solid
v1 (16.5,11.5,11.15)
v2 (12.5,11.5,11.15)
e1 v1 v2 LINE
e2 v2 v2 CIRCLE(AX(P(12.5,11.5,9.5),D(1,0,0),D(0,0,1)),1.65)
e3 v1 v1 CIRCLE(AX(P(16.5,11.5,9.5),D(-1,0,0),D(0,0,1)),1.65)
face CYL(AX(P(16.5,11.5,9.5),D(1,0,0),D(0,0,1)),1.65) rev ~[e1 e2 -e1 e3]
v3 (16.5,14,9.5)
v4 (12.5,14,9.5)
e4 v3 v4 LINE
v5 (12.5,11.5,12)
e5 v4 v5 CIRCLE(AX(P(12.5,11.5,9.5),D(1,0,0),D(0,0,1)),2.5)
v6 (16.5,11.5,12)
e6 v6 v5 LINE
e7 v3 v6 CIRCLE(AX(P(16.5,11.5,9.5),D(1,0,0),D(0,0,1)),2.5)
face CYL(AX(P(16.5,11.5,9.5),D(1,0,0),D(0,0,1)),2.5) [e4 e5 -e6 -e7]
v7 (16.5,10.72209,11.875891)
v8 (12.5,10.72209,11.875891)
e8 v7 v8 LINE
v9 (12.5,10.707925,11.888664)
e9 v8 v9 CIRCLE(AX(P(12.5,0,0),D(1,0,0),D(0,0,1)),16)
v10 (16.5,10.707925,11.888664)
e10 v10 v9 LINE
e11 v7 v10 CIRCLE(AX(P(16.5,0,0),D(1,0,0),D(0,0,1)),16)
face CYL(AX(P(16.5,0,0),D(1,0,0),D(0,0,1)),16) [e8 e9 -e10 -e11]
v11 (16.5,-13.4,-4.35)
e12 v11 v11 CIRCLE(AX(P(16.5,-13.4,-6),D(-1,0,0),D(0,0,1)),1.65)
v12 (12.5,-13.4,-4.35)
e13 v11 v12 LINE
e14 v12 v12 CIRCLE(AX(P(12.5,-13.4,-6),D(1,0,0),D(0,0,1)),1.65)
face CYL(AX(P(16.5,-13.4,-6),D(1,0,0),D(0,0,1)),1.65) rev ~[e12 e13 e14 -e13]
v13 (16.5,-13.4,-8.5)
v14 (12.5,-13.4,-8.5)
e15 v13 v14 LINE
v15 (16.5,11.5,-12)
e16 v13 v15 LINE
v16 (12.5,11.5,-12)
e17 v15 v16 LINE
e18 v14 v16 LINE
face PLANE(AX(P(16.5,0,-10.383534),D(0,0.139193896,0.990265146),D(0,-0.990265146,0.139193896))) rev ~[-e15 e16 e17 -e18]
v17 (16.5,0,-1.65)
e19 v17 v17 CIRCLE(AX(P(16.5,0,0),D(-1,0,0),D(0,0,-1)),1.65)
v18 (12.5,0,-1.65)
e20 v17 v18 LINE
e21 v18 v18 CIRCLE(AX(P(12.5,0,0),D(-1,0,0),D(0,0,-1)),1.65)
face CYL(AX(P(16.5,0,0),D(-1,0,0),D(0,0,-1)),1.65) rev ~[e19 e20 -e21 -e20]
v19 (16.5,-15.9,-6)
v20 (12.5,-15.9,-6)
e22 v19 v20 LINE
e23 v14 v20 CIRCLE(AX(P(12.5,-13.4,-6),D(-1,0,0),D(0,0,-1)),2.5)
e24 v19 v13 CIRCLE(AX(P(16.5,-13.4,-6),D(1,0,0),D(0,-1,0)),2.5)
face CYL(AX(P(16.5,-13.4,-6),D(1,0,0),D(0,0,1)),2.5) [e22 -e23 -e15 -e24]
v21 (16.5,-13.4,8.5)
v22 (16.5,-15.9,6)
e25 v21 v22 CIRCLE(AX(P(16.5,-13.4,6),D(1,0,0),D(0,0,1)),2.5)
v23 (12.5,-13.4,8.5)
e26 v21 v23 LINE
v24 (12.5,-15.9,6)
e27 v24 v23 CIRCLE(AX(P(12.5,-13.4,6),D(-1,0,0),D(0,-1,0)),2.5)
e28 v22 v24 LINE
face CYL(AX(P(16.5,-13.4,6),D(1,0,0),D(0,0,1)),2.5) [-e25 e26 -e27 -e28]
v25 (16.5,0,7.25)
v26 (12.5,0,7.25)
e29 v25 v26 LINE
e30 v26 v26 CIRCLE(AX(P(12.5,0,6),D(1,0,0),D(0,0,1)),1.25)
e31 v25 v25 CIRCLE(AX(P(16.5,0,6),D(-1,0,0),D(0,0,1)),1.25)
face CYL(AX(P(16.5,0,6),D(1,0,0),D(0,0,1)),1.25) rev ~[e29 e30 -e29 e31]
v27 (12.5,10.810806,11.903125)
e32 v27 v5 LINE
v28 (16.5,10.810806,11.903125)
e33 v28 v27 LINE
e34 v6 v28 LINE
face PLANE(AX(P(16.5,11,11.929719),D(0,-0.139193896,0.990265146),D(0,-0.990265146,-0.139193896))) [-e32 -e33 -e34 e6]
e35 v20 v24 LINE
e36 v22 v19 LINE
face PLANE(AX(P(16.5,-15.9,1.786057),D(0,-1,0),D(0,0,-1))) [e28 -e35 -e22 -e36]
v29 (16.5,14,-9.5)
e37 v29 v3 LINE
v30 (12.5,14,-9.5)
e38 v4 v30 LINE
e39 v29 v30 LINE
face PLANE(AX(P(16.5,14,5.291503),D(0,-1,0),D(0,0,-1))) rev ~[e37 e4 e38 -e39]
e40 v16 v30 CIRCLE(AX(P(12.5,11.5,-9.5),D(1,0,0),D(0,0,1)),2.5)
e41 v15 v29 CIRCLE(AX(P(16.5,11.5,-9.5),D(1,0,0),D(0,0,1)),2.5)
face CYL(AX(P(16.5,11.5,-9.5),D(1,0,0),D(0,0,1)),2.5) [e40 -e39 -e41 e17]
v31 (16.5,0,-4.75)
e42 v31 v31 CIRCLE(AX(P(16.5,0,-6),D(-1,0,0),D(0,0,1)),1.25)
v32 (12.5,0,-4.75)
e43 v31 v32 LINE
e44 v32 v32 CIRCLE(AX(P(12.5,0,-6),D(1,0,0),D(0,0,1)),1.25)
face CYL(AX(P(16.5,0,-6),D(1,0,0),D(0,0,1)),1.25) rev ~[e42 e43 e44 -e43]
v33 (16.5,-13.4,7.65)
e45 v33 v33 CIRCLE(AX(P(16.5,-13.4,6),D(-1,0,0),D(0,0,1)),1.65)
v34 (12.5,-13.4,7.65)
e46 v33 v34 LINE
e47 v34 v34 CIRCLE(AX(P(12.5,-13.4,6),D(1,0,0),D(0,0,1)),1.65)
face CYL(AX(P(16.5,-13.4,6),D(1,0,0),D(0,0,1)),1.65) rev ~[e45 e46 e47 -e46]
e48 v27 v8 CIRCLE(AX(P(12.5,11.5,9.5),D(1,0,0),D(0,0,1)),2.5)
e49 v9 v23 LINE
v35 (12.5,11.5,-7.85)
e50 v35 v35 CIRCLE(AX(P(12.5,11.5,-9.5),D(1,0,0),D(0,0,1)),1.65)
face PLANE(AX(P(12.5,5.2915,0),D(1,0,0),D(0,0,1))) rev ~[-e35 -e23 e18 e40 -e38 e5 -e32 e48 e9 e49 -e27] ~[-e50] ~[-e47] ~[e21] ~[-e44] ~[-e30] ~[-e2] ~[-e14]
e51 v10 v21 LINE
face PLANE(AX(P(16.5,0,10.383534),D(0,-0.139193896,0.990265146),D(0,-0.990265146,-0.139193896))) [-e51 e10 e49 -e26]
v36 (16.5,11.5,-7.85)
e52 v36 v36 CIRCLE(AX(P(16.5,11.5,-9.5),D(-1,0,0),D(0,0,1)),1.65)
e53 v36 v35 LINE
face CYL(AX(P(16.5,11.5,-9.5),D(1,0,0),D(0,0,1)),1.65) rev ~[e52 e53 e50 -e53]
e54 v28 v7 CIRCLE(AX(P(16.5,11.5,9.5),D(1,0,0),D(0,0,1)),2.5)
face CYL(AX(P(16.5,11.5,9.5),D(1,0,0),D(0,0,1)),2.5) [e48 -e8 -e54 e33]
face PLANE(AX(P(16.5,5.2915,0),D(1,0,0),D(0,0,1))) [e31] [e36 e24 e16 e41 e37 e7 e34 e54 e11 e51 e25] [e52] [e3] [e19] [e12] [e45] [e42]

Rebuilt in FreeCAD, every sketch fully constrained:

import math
import FreeCAD as App
import Part
import Sketcher
from FreeCAD import Vector
Q = App.Units.Quantity

doc = App.newDocument("Part")
body = doc.addObject("PartDesign::Body", "Body")

# Sketch on YZ plane
sketch1 = body.newObject("Sketcher::SketchObject", "Sketch")
sketch1.AttachmentSupport = (doc.getObject("YZ_Plane"), [""])
sketch1.MapMode = "FlatFace"
sketch1.AttachmentOffset = App.Placement(Vector(0, 0, 16.5), App.Rotation())
sketch1.addGeometry([
    Part.ArcOfCircle(Part.Circle(Vector(-13.4, 6, 0), Vector(0, 0, 1), 2.5), math.radians(90), math.radians(180)),  # 0
    Part.LineSegment(Vector(-15.9, 6, 0), Vector(-15.9, -6, 0)),  # 1
    Part.ArcOfCircle(Part.Circle(Vector(-13.4, -6, 0), Vector(0, 0, 1), 2.5), math.radians(180), math.radians(270)),  # 2
    Part.LineSegment(Vector(-13.4, -8.5, 0), Vector(11.5, -12, 0)),  # 3
    Part.ArcOfCircle(Part.Circle(Vector(11.5, -9.5, 0), Vector(0, 0, 1), 2.5), math.radians(-90), math.radians(0)),  # 4
    Part.LineSegment(Vector(14, -9.5, 0), Vector(14, 9.5, 0)),  # 5
    Part.ArcOfCircle(Part.Circle(Vector(11.5, 9.5, 0), Vector(0, 0, 1), 2.5), math.radians(0), math.radians(90)),  # 6
    Part.LineSegment(Vector(11.5, 12, 0), Vector(10.811, 11.903, 0)),  # 7
    Part.ArcOfCircle(Part.Circle(Vector(11.5, 9.5, 0), Vector(0, 0, 1), 2.5), math.radians(106), math.radians(108.13)),  # 8
    Part.ArcOfCircle(Part.Circle(Vector(0, 0, 0), Vector(0, 0, 1), 16), math.radians(47.92), math.radians(47.99)),  # 9
    Part.LineSegment(Vector(10.708, 11.889, 0), Vector(-13.4, 8.5, 0)),  # 10
    Part.Circle(Vector(0, 6, 0), Vector(0, 0, 1), 1.25),  # 11
    Part.Circle(Vector(0, -6, 0), Vector(0, 0, 1), 1.25),  # 12
    Part.Circle(Vector(11.5, 9.5, 0), Vector(0, 0, 1), 1.65),  # 13
    Part.Circle(Vector(11.5, -9.5, 0), Vector(0, 0, 1), 1.65),  # 14
    Part.Circle(Vector(-13.4, -6, 0), Vector(0, 0, 1), 1.65),  # 15
    Part.Circle(Vector(-13.4, 6, 0), Vector(0, 0, 1), 1.65),  # 16
], False)
sketch1.addConstraint([
    Sketcher.Constraint("Tangent", 0, 2, 1, 1),
    Sketcher.Constraint("Tangent", 1, 2, 2, 1),
    Sketcher.Constraint("Coincident", 2, 2, 3, 1),
    Sketcher.Constraint("Coincident", 3, 2, 4, 1),
    Sketcher.Constraint("Tangent", 4, 2, 5, 1),
    Sketcher.Constraint("Tangent", 5, 2, 6, 1),
    Sketcher.Constraint("Coincident", 6, 2, 7, 1),
    Sketcher.Constraint("Coincident", 7, 2, 8, 1),
    Sketcher.Constraint("Coincident", 8, 2, 9, 1),
    Sketcher.Constraint("Coincident", 9, 2, 10, 1),
    Sketcher.Constraint("Coincident", 10, 2, 0, 1),
    Sketcher.Constraint("Vertical", 1),
    Sketcher.Constraint("Vertical", 5),
    Sketcher.Constraint("Coincident", 9, 3, -1, 1),
    Sketcher.Constraint("Coincident", 8, 3, 6, 3),
    Sketcher.Constraint("Coincident", 13, 3, 6, 3),
    Sketcher.Constraint("Coincident", 14, 3, 4, 3),
    Sketcher.Constraint("Coincident", 15, 3, 2, 3),
    Sketcher.Constraint("Coincident", 16, 3, 0, 3),
    Sketcher.Constraint("Equal", 0, 2),
    Sketcher.Constraint("Equal", 2, 4),
    Sketcher.Constraint("Equal", 4, 6),
    Sketcher.Constraint("Equal", 6, 8),
    Sketcher.Constraint("Equal", 11, 12),
    Sketcher.Constraint("Equal", 13, 14),
    Sketcher.Constraint("Equal", 14, 15),
    Sketcher.Constraint("Equal", 15, 16),
    Sketcher.Constraint("Symmetric", 11, 3, 12, 3, -1, 1),
    Sketcher.Constraint("Symmetric", 3, 2, 6, 2, -1),
    Sketcher.Constraint("Symmetric", 2, 2, 10, 2, -1),
    Sketcher.Constraint("PointOnObject", 11, 3, -2),
    Sketcher.Constraint("Parallel", 7, 10),
    Sketcher.Constraint("Horizontal", 0, 3, 11, 3),
    Sketcher.Constraint("Vertical", 16, 3, 2, 2),
    Sketcher.Constraint("Vertical", 14, 3, 3, 2),
    Sketcher.Constraint("Radius", 9, Q("16 mm")),
    Sketcher.Constraint("Diameter", 11, Q("2.5 mm")),
    Sketcher.Constraint("Diameter", 13, Q("3.3 mm")),
    Sketcher.Constraint("Radius", 0, Q("2.5 mm")),
    Sketcher.Constraint("DistanceY", 1, 2, 1, 1, Q("12 mm")),
    Sketcher.Constraint("DistanceY", 5, 1, 5, 2, Q("19 mm")),
    Sketcher.Constraint("DistanceX", -1, 1, 4, 2, Q("14 mm")),
    Sketcher.Constraint("DistanceX", 0, 3, -1, 1, Q("13.4 mm")),
    Sketcher.Constraint("Distance", 7, Q("0.696 mm")),
])
pad1 = body.newObject("PartDesign::Pad", "Pad")
pad1.Profile = sketch1
pad1.Length = 4
pad1.Reversed = True

# Sketch on YZ plane
sketch2 = body.newObject("Sketcher::SketchObject", "Sketch001")
sketch2.AttachmentSupport = (doc.getObject("YZ_Plane"), [""])
sketch2.MapMode = "FlatFace"
sketch2.AttachmentOffset = App.Placement(Vector(0, 0, 16.5), App.Rotation())
sketch2.addGeometry(Part.Circle(Vector(0, 0, 0), Vector(0, 0, 1), 1.6), False)
sketch2.addConstraint([
    Sketcher.Constraint("Coincident", 0, 3, -1, 1),
    Sketcher.Constraint("Diameter", 0, Q("3.3 mm")),
])
doc.recompute()
hole = body.newObject("PartDesign::Hole", "Hole")
hole.Profile = sketch2
hole.ThreadType = "None"
hole.Diameter = 3.3
hole.DepthType = "ThroughAll"

doc.recompute()
